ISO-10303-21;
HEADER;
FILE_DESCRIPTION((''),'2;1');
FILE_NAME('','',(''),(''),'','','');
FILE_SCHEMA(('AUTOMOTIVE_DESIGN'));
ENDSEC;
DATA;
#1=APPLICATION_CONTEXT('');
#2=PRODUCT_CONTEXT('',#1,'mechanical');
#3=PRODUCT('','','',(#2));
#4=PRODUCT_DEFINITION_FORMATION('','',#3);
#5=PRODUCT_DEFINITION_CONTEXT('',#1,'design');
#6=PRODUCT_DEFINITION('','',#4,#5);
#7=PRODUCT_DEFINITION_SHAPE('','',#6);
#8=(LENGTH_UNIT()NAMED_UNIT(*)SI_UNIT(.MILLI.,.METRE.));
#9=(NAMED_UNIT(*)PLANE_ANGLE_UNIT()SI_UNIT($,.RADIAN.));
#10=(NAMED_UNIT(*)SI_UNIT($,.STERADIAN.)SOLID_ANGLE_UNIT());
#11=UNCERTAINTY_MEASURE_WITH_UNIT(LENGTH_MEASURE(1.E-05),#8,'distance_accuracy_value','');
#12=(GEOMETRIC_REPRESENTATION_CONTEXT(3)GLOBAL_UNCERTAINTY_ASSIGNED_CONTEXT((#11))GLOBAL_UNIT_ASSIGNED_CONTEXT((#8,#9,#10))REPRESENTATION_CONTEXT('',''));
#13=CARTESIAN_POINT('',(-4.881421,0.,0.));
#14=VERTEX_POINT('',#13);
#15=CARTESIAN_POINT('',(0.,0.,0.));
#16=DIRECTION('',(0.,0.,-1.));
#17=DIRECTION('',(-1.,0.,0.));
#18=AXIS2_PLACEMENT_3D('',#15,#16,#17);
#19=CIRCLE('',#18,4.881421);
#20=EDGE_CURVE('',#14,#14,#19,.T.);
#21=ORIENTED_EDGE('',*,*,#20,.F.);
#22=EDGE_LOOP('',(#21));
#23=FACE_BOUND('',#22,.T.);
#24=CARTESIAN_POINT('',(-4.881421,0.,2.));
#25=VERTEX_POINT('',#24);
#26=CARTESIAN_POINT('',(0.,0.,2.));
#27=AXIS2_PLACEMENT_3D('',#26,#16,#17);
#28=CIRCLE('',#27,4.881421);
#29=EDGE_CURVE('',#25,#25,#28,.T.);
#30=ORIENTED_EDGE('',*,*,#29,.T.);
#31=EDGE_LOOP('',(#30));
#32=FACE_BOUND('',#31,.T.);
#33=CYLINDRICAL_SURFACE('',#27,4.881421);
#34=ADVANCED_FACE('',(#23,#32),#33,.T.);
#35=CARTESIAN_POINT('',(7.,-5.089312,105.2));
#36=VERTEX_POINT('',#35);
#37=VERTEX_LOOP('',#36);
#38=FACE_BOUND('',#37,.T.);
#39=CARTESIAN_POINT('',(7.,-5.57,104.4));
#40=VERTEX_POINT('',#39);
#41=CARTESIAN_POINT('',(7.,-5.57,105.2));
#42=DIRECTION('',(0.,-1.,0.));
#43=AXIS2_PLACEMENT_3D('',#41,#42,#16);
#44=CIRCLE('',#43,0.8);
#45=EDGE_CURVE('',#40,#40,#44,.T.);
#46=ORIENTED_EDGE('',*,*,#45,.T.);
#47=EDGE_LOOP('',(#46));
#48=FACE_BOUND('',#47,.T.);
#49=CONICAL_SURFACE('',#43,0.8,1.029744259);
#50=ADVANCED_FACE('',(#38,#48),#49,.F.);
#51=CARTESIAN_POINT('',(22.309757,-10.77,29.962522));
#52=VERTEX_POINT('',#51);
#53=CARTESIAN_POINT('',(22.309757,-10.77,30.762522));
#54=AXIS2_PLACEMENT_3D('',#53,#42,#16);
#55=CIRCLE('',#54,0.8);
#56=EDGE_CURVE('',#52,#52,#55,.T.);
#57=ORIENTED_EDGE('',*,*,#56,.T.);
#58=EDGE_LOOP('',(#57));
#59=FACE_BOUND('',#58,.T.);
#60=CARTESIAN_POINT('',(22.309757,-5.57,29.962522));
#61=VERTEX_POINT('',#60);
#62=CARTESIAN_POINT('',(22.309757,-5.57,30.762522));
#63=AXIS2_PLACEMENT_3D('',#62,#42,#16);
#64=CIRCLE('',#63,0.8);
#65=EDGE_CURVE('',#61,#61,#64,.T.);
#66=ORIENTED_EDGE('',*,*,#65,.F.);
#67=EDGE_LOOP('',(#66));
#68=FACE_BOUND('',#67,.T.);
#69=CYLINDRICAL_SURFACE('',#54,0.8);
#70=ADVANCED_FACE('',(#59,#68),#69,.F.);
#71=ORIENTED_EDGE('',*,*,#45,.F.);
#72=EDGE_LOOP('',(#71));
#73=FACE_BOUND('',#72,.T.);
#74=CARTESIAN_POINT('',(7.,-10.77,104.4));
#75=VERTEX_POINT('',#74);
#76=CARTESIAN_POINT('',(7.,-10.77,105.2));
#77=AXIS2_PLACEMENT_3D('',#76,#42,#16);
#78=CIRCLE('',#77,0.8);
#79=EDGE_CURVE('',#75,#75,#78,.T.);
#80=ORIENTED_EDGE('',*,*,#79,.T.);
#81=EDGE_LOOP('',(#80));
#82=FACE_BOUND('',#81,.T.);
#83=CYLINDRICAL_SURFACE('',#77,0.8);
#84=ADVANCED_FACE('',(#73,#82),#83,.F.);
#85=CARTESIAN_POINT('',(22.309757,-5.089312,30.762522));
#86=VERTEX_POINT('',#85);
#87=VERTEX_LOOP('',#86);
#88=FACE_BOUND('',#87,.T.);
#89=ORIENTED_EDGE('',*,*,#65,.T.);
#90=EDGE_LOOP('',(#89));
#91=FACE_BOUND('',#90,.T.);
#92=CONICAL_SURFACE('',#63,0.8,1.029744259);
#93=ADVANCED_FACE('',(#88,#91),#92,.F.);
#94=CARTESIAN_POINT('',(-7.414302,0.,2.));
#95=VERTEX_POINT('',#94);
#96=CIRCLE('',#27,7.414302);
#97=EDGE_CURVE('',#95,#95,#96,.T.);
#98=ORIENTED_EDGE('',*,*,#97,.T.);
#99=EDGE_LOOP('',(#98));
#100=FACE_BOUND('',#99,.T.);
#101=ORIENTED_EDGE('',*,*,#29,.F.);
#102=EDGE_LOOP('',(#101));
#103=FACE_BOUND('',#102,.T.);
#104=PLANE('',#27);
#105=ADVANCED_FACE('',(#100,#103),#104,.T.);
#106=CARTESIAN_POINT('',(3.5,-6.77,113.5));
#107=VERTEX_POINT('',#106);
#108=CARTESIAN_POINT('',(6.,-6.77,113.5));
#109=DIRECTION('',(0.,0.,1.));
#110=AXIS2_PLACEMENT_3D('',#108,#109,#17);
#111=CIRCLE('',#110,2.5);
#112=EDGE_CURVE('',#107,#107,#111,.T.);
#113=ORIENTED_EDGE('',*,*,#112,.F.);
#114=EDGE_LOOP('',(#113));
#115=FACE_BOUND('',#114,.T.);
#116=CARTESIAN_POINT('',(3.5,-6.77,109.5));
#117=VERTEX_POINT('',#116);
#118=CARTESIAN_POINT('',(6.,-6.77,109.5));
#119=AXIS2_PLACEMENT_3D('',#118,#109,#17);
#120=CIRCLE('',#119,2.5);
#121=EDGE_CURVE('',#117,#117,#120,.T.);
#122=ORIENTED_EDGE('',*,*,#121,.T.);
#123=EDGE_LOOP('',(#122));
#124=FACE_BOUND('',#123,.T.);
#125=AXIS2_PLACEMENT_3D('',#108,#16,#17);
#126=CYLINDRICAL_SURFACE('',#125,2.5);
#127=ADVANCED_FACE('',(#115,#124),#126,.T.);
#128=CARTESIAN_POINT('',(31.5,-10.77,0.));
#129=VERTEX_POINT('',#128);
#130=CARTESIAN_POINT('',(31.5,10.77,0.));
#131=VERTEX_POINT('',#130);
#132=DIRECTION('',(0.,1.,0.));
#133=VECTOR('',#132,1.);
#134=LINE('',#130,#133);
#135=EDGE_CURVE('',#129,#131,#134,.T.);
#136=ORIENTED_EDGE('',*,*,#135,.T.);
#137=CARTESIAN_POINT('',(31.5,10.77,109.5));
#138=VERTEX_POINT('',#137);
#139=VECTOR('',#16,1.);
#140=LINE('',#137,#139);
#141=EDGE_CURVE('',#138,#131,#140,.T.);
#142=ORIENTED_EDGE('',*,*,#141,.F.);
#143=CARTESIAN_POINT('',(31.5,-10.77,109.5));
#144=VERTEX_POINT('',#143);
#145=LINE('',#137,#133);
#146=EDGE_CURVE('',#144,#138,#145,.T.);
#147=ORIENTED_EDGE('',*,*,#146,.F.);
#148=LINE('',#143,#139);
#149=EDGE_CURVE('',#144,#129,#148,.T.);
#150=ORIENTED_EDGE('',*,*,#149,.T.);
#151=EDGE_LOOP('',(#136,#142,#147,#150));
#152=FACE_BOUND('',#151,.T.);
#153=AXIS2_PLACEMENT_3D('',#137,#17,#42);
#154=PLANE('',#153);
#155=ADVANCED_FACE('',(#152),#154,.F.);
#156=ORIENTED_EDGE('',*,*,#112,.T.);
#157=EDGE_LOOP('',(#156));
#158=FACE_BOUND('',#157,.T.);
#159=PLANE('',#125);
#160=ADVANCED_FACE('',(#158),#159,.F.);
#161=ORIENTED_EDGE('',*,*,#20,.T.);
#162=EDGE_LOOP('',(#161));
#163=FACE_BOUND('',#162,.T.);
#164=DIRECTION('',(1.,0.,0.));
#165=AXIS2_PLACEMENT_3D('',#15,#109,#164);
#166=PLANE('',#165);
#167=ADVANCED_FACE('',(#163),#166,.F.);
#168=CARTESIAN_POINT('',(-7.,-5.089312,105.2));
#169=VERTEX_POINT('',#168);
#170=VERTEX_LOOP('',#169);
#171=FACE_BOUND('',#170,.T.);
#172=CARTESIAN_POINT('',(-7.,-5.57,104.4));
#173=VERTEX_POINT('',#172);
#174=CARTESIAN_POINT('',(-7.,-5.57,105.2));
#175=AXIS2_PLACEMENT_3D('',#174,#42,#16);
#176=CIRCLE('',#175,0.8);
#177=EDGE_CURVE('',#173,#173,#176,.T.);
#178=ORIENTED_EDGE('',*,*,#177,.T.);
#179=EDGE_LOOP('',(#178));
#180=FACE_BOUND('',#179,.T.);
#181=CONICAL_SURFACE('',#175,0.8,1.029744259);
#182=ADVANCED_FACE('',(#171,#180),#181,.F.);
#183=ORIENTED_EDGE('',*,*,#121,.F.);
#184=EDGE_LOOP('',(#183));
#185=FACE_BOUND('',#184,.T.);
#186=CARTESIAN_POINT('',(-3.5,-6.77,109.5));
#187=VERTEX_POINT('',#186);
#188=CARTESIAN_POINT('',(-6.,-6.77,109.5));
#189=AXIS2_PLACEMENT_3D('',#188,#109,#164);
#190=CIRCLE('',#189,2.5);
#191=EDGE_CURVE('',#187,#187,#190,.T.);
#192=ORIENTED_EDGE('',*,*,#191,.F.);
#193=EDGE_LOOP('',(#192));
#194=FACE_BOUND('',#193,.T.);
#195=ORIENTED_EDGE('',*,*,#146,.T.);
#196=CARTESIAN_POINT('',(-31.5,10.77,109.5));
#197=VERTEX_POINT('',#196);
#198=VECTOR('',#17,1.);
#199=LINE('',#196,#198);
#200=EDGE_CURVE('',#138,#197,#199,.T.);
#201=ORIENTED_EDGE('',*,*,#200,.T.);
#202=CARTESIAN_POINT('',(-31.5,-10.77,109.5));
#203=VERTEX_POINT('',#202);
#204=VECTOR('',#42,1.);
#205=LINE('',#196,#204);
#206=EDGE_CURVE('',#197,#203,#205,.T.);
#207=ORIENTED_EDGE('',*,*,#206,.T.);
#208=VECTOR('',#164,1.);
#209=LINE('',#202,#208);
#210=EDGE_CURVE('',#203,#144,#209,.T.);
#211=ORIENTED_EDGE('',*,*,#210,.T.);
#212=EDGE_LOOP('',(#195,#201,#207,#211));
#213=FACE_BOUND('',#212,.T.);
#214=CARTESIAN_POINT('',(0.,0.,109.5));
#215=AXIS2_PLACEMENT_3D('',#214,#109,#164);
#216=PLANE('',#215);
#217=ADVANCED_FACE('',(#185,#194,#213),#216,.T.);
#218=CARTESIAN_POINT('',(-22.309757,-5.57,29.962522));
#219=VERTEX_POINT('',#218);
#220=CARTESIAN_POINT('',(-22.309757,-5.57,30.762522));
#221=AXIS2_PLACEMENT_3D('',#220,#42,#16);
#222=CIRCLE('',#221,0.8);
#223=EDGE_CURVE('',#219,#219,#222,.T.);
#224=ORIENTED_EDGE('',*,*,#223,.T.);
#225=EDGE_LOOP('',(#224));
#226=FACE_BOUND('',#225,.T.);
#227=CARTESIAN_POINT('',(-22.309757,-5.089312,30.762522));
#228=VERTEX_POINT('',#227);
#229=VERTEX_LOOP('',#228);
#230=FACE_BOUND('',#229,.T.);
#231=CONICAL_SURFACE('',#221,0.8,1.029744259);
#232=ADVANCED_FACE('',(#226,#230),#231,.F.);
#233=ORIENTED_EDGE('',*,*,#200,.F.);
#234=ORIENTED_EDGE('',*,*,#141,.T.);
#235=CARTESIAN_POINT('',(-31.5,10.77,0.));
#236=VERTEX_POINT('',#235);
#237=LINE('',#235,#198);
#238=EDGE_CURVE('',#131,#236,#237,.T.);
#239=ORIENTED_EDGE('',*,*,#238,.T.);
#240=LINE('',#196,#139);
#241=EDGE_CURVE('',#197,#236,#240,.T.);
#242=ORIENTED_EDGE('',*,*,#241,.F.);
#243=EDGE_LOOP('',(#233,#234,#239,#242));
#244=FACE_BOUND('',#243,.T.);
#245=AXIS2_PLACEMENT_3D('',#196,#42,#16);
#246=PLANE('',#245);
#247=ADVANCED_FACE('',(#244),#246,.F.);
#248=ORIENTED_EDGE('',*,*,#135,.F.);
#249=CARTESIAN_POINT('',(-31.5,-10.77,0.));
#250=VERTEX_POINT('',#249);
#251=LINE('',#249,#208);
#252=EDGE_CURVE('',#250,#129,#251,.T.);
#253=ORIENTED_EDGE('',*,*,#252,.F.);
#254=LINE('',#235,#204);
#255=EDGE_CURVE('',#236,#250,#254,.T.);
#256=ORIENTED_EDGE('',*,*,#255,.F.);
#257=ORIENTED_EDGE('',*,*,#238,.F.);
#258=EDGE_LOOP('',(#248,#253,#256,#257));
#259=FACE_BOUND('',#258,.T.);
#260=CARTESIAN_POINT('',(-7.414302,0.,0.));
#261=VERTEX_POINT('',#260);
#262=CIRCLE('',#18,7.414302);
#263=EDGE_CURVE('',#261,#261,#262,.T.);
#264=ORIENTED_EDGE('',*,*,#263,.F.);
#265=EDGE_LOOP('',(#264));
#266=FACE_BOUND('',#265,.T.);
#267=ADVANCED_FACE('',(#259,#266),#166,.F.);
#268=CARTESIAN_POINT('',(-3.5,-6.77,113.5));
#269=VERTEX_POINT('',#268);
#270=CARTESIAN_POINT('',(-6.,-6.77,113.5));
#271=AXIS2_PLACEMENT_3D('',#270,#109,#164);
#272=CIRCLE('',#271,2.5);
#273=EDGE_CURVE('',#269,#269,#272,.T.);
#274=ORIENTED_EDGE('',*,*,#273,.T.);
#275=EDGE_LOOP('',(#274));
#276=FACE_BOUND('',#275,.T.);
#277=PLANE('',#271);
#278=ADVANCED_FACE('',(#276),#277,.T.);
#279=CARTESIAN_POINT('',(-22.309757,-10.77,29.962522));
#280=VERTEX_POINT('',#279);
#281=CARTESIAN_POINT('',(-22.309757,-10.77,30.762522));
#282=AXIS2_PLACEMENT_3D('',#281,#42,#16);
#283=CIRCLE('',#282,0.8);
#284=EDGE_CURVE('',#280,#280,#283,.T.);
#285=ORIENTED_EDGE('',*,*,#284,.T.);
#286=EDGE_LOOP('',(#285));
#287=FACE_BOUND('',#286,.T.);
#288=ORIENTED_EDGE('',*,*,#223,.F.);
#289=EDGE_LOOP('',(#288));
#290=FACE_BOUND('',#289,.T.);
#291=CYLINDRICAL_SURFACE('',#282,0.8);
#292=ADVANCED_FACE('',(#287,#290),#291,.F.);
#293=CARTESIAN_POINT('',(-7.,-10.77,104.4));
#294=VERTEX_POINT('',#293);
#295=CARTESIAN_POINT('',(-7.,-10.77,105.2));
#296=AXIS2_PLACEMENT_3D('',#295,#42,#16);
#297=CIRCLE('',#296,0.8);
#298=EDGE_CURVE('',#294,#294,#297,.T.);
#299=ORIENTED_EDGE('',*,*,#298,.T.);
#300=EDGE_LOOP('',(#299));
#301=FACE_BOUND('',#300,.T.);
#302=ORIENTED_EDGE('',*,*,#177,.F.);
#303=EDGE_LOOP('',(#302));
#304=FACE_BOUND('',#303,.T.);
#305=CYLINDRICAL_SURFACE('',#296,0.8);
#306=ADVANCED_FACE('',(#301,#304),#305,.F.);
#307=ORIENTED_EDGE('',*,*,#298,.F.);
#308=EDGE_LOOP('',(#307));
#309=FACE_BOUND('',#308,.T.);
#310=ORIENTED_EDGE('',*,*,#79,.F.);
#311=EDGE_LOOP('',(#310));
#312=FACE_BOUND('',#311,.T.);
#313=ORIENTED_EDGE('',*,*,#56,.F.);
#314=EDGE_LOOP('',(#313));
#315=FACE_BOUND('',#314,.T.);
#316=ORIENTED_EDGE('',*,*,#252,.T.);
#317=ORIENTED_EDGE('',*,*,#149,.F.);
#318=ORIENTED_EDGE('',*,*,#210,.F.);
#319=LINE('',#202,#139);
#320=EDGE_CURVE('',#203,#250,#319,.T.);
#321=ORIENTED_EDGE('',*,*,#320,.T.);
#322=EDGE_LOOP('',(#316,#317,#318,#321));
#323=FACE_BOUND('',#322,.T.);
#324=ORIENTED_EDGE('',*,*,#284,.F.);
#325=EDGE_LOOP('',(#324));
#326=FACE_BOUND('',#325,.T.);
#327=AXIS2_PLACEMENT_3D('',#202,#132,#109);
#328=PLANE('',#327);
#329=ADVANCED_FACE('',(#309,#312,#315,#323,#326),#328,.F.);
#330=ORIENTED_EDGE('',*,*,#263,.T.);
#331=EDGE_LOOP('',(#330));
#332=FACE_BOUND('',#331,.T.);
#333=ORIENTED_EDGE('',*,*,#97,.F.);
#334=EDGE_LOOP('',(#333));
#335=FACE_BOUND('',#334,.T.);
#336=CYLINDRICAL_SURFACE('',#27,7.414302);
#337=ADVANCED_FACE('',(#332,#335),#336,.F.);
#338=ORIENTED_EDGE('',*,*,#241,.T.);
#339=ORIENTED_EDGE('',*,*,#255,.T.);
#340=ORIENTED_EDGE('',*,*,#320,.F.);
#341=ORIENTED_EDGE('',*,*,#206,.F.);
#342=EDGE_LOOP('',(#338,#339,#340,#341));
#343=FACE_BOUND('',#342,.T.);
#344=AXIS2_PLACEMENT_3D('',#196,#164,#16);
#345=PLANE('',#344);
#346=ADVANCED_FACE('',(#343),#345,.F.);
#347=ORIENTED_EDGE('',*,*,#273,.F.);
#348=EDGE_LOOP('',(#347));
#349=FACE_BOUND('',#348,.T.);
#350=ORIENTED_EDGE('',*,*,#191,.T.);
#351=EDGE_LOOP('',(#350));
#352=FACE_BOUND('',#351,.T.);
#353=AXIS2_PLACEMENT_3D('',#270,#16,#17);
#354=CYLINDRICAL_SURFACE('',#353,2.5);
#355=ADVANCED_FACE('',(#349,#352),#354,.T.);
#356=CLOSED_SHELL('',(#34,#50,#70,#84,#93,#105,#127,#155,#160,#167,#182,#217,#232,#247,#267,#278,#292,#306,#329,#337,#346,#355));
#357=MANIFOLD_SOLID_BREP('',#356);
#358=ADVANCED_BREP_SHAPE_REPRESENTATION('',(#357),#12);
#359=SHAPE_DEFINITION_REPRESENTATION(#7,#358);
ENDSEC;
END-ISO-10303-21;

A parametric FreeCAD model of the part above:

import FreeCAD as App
import Part
import Sketcher
from FreeCAD import Vector

doc = App.newDocument("Part")
body = doc.addObject("PartDesign::Body", "Body")

# Sketch on XY plane
sketch1 = body.newObject("Sketcher::SketchObject", "Sketch")
sketch1.AttachmentSupport = (doc.getObject("XY_Plane"), [""])
sketch1.MapMode = "FlatFace"
sketch1.addGeometry([
    Part.LineSegment(Vector(-32, 11, 0), Vector(-32, -11, 0)),
    Part.LineSegment(Vector(-32, -11, 0), Vector(32, -11, 0)),
    Part.LineSegment(Vector(32, -11, 0), Vector(32, 11, 0)),
    Part.LineSegment(Vector(32, 11, 0), Vector(-32, 11, 0)),
], False)
sketch1.addConstraint([
    Sketcher.Constraint("Coincident", 0, 2, 1, 1),
    Sketcher.Constraint("Coincident", 1, 2, 2, 1),
    Sketcher.Constraint("Coincident", 2, 2, 3, 1),
    Sketcher.Constraint("Coincident", 3, 2, 0, 1),
    Sketcher.Constraint("Vertical", 0),
    Sketcher.Constraint("Horizontal", 1),
    Sketcher.Constraint("Vertical", 2),
    Sketcher.Constraint("Horizontal", 3),
    Sketcher.Constraint("Symmetric", 0, 2, 2, 2, -1, 1),
    Sketcher.Constraint("DistanceX", 1, 1, 1, 2, 63.0),
    Sketcher.Constraint("DistanceY", 0, 2, 0, 1, 21.54),
])
pad1 = body.newObject("PartDesign::Pad", "Pad")
pad1.Profile = sketch1
pad1.Length = 109.5

# Sketch on XZ plane
sketch2 = body.newObject("Sketcher::SketchObject", "Sketch001")
sketch2.AttachmentSupport = (doc.getObject("XZ_Plane"), [""])
sketch2.MapMode = "FlatFace"
sketch2.AttachmentOffset = App.Placement(Vector(0, 0, 10.77), App.Rotation())
sketch2.addGeometry([
    Part.Circle(Vector(-7, 105.2, 0), Vector(0, 0, 1), 0.8),
    Part.Circle(Vector(7, 105.2, 0), Vector(0, 0, 1), 0.8),
    Part.Circle(Vector(22.3, 30.8, 0), Vector(0, 0, 1), 0.8),
    Part.Circle(Vector(-22.3, 30.8, 0), Vector(0, 0, 1), 0.8),
], False)
sketch2.addConstraint([
    Sketcher.Constraint("Equal", 0, 1),
    Sketcher.Constraint("Equal", 1, 2),
    Sketcher.Constraint("Equal", 2, 3),
    Sketcher.Constraint("Symmetric", 0, 3, 1, 3, -2),
    Sketcher.Constraint("Symmetric", 2, 3, 3, 3, -2),
    Sketcher.Constraint("Diameter", 0, 1.6),
    Sketcher.Constraint("DistanceX", 0, 3, -1, 1, 7.0),
    Sketcher.Constraint("DistanceY", -1, 1, 0, 3, 105.2),
    Sketcher.Constraint("DistanceY", -1, 1, 2, 3, 30.762522),
    Sketcher.Constraint("DistanceX", -1, 1, 2, 3, 22.309757),
])
doc.recompute()
hole = body.newObject("PartDesign::Hole", "Hole")
hole.Profile = sketch2
hole.ThreadType = "None"
hole.Diameter = 1.6
hole.DepthType = "Dimension"
hole.Depth = 5.2
hole.DrillPoint = "Angled"
hole.DrillPointAngle = 118

# Sketch on XY plane
sketch3 = body.newObject("Sketcher::SketchObject", "Sketch002")
sketch3.AttachmentSupport = (doc.getObject("XY_Plane"), [""])
sketch3.MapMode = "FlatFace"
sketch3.AttachmentOffset = App.Placement(Vector(0, 0, 109.5), App.Rotation())
sketch3.addGeometry([
    Part.Circle(Vector(-6, -6.8, 0), Vector(0, 0, 1), 2.5),
    Part.Circle(Vector(6, -6.8, 0), Vector(0, 0, 1), 2.5),
], False)
sketch3.addConstraint([
    Sketcher.Constraint("Equal", 0, 1),
    Sketcher.Constraint("Symmetric", 0, 3, 1, 3, -2),
    Sketcher.Constraint("Diameter", 0, 5.0),
    Sketcher.Constraint("DistanceX", 0, 3, -1, 1, 6.0),
    Sketcher.Constraint("DistanceY", 0, 3, -1, 1, 6.77),
])
pad2 = body.newObject("PartDesign::Pad", "Pad001")
pad2.Profile = sketch3
pad2.Length = 4

# Sketch on XY plane
sketch4 = body.newObject("Sketcher::SketchObject", "Sketch003")
sketch4.AttachmentSupport = (doc.getObject("XY_Plane"), [""])
sketch4.MapMode = "FlatFace"
sketch4.addGeometry([
    Part.Circle(Vector(0, 0, 0), Vector(0, 0, 1), 7.4),
    Part.Circle(Vector(0, 0, 0), Vector(0, 0, 1), 4.9),
], False)
sketch4.addConstraint([
    Sketcher.Constraint("Coincident", 0, 3, -1, 1),
    Sketcher.Constraint("Coincident", 1, 3, -1, 1),
    Sketcher.Constraint("Diameter", 0, 14.828605),
    Sketcher.Constraint("Diameter", 1, 9.762842),
])
pocket1 = body.newObject("PartDesign::Pocket", "Pocket")
pocket1.Profile = sketch4
pocket1.Length = 2
pocket1.Reversed = True

doc.recompute()
